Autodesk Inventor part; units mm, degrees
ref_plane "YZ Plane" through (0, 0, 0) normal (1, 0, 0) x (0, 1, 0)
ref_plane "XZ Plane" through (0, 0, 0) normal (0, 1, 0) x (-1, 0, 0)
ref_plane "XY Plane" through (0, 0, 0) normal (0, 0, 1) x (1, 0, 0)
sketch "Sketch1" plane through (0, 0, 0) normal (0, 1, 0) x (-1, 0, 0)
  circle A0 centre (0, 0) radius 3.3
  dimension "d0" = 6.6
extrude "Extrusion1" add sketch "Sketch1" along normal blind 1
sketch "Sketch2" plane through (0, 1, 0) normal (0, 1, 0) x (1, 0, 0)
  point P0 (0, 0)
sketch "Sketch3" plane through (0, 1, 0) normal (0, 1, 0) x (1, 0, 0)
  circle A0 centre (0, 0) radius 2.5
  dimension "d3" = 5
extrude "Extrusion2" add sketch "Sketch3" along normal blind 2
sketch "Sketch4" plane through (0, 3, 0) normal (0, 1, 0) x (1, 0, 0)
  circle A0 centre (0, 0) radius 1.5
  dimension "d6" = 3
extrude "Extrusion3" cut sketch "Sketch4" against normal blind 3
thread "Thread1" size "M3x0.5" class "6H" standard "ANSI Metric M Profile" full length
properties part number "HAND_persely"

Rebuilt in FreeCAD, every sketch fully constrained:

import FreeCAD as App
import Part
import Sketcher
from FreeCAD import Vector

doc = App.newDocument("Part")
body = doc.addObject("PartDesign::Body", "Body")

sketch1 = body.newObject("Sketcher::SketchObject", "Sketch")
sketch1.AttachmentSupport = (doc.getObject("XZ_Plane"), [""])
sketch1.MapMode = "FlatFace"
sketch1.addGeometry(Part.Circle(Vector(0, 0, 0), Vector(0, 0, 1), 3.3), False)
sketch1.addConstraint([
    Sketcher.Constraint("Coincident", 0, 3, -1, 1),
    Sketcher.Constraint("Diameter", 0, 6.6),
])
pad1 = body.newObject("PartDesign::Pad", "Pad")
pad1.Profile = sketch1
pad1.Length = 1
pad1.Reversed = True

sketch2 = body.newObject("Sketcher::SketchObject", "Sketch001")
sketch2.AttachmentSupport = (doc.getObject("XZ_Plane"), [""])
sketch2.MapMode = "FlatFace"
sketch2.AttachmentOffset = App.Placement(Vector(0, 0, -1), App.Rotation())
sketch2.addGeometry(Part.Circle(Vector(0, 0, 0), Vector(0, 0, 1), 2.5), False)
sketch2.addConstraint([
    Sketcher.Constraint("Coincident", 0, 3, -1, 1),
    Sketcher.Constraint("Diameter", 0, 5.0),
])
pad2 = body.newObject("PartDesign::Pad", "Pad001")
pad2.Profile = sketch2
pad2.Length = 2
pad2.Reversed = True

sketch3 = body.newObject("Sketcher::SketchObject", "Sketch002")
sketch3.AttachmentSupport = (doc.getObject("XZ_Plane"), [""])
sketch3.MapMode = "FlatFace"
sketch3.AttachmentOffset = App.Placement(Vector(0, 0, -3), App.Rotation())
sketch3.addGeometry(Part.Circle(Vector(0, 0, 0), Vector(0, 0, 1), 1.5), False)
sketch3.addConstraint([
    Sketcher.Constraint("Coincident", 0, 3, -1, 1),
    Sketcher.Constraint("Diameter", 0, 3.0),
])
pocket1 = body.newObject("PartDesign::Pocket", "Pocket")
pocket1.Profile = sketch3
pocket1.Length = 3
pocket1.Reversed = True

doc.recompute()
